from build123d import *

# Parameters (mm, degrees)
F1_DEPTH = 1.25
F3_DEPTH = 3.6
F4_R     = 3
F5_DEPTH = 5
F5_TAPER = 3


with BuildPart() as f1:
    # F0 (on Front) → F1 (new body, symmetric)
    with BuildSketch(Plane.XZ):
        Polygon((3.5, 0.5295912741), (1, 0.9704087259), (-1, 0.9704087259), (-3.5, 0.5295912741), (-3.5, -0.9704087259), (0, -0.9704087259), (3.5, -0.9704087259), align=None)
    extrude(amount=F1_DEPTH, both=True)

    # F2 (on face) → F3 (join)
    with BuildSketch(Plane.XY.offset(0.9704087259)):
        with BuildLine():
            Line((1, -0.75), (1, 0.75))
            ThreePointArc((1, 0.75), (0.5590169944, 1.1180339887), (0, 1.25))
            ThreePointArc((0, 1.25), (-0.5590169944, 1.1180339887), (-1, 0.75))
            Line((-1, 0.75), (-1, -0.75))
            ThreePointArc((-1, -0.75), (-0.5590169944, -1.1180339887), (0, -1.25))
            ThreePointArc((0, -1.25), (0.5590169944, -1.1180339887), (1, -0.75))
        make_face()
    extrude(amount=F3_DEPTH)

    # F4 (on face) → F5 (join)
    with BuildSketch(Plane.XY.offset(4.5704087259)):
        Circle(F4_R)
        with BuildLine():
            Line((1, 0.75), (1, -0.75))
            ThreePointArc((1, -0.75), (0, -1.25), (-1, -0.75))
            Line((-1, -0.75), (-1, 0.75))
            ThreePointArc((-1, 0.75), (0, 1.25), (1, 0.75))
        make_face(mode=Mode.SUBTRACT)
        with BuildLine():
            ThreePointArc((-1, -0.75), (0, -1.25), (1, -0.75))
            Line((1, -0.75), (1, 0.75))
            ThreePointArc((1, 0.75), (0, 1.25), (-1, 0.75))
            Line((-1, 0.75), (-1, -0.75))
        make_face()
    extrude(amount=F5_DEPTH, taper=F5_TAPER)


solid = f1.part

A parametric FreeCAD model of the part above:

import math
import FreeCAD as App
import Part
import Sketcher
from FreeCAD import Vector
Q = App.Units.Quantity


def add_polygon(sketch, points):
    """Adds a closed chain of lines whose ends are joined by coincident constraints."""
    first, n = sketch.GeometryCount, len(points)
    for a, b in zip(points, points[1:] + points[:1]):
        sketch.addGeometry(Part.LineSegment(App.Vector(*a, 0), App.Vector(*b, 0)), False)
    for i in range(n):
        sketch.addConstraint(Sketcher.Constraint("Coincident", first + i, 2, first + (i + 1) % n, 1))

doc = App.newDocument("Part")
body = doc.addObject("PartDesign::Body", "Body")

sketch1 = doc.addObject("Sketcher::SketchObject", "Sketch")
body.addObject(sketch1)
sketch1.AttachmentSupport = (doc.XZ_Plane, [""])
sketch1.MapMode = "FlatFace"
add_polygon(sketch1, [(3.5, 0.5), (1, 1), (-1, 1), (-3.5, 0.5), (-3.5, -1), (3.5, -1)])
sketch1.addConstraint([
    Sketcher.Constraint("Horizontal", 1),
    Sketcher.Constraint("Vertical", 3),
    Sketcher.Constraint("Horizontal", 4),
    Sketcher.Constraint("Vertical", 5),
    Sketcher.Constraint("Symmetric", 2, 2, 5, 2, -2),
    Sketcher.Constraint("Equal", 0, 2),
    Sketcher.Constraint("DistanceX", 1, 2, 1, 1, 2.0),
    Sketcher.Constraint("DistanceX", 4, 1, 4, 2, 7.0),
    Sketcher.Constraint("Angle", 0, Q("170 deg")),
    Sketcher.Constraint("DistanceY", 3, 2, 3, 1, 1.5),
    Sketcher.Constraint("DistanceY", -1, 1, 0, 2, 0.970409),
])
pad1 = doc.addObject("PartDesign::Pad", "Pad")
body.addObject(pad1)
pad1.Profile = sketch1
pad1.Length = 2.5
pad1.Midplane = True

sketch2 = doc.addObject("Sketcher::SketchObject", "Sketch001")
body.addObject(sketch2)
sketch2.AttachmentSupport = (doc.XY_Plane, [""])
sketch2.MapMode = "FlatFace"
sketch2.AttachmentOffset = App.Placement(Vector(0, 0, 0.970409), App.Rotation())
sketch2.addGeometry([
    Part.LineSegment(Vector(1, -0.8, 0), Vector(1, 0.8, 0)),
    Part.ArcOfCircle(Part.Circle(Vector(0, 0, 0), Vector(0, 0, 1), 1.2), math.radians(37), math.radians(90)),
    Part.ArcOfCircle(Part.Circle(Vector(0, 0, 0), Vector(0, 0, 1), 1.2), math.radians(90), math.radians(143)),
    Part.LineSegment(Vector(-1, 0.8, 0), Vector(-1, -0.8, 0)),
    Part.ArcOfCircle(Part.Circle(Vector(0, 0, 0), Vector(0, 0, 1), 1.2), math.radians(-143), math.radians(-90)),
    Part.ArcOfCircle(Part.Circle(Vector(0, 0, 0), Vector(0, 0, 1), 1.2), math.radians(-90), math.radians(-37)),
], False)
sketch2.addConstraint([
    Sketcher.Constraint("Coincident", 0, 2, 1, 1),
    Sketcher.Constraint("Tangent", 1, 2, 2, 1),
    Sketcher.Constraint("Coincident", 2, 2, 3, 1),
    Sketcher.Constraint("Coincident", 3, 2, 4, 1),
    Sketcher.Constraint("Tangent", 4, 2, 5, 1),
    Sketcher.Constraint("Coincident", 5, 2, 0, 1),
    Sketcher.Constraint("Vertical", 0),
    Sketcher.Constraint("Vertical", 3),
    Sketcher.Constraint("Coincident", 1, 3, -1, 1),
    Sketcher.Constraint("Coincident", 4, 3, -1, 1),
    Sketcher.Constraint("Equal", 1, 2),
    Sketcher.Constraint("Equal", 2, 4),
    Sketcher.Constraint("Equal", 4, 5),
    Sketcher.Constraint("PointOnObject", 1, 2, -2),
    Sketcher.Constraint("PointOnObject", 4, 2, -2),
    Sketcher.Constraint("Horizontal", 0, 2, 2, 2),
    Sketcher.Constraint("Radius", 1, 1.25),
    Sketcher.Constraint("DistanceY", 0, 1, 0, 2, 1.5),
])
pad2 = doc.addObject("PartDesign::Pad", "Pad001")
body.addObject(pad2)
pad2.Profile = sketch2
pad2.Length = 3.6

sketch3 = doc.addObject("Sketcher::SketchObject", "Sketch002")
body.addObject(sketch3)
sketch3.AttachmentSupport = (doc.XY_Plane, [""])
sketch3.MapMode = "FlatFace"
sketch3.AttachmentOffset = App.Placement(Vector(0, 0, 4.570409), App.Rotation())
sketch3.addGeometry(Part.Circle(Vector(0, 0, 0), Vector(0, 0, 1), 3), False)
sketch3.addConstraint([
    Sketcher.Constraint("Coincident", 0, 3, -1, 1),
    Sketcher.Constraint("Diameter", 0, 6.0),
])
pad3 = doc.addObject("PartDesign::Pad", "Pad002")
body.addObject(pad3)
pad3.Profile = sketch3
pad3.Length = 5
pad3.TaperAngle = -3

doc.recompute()
